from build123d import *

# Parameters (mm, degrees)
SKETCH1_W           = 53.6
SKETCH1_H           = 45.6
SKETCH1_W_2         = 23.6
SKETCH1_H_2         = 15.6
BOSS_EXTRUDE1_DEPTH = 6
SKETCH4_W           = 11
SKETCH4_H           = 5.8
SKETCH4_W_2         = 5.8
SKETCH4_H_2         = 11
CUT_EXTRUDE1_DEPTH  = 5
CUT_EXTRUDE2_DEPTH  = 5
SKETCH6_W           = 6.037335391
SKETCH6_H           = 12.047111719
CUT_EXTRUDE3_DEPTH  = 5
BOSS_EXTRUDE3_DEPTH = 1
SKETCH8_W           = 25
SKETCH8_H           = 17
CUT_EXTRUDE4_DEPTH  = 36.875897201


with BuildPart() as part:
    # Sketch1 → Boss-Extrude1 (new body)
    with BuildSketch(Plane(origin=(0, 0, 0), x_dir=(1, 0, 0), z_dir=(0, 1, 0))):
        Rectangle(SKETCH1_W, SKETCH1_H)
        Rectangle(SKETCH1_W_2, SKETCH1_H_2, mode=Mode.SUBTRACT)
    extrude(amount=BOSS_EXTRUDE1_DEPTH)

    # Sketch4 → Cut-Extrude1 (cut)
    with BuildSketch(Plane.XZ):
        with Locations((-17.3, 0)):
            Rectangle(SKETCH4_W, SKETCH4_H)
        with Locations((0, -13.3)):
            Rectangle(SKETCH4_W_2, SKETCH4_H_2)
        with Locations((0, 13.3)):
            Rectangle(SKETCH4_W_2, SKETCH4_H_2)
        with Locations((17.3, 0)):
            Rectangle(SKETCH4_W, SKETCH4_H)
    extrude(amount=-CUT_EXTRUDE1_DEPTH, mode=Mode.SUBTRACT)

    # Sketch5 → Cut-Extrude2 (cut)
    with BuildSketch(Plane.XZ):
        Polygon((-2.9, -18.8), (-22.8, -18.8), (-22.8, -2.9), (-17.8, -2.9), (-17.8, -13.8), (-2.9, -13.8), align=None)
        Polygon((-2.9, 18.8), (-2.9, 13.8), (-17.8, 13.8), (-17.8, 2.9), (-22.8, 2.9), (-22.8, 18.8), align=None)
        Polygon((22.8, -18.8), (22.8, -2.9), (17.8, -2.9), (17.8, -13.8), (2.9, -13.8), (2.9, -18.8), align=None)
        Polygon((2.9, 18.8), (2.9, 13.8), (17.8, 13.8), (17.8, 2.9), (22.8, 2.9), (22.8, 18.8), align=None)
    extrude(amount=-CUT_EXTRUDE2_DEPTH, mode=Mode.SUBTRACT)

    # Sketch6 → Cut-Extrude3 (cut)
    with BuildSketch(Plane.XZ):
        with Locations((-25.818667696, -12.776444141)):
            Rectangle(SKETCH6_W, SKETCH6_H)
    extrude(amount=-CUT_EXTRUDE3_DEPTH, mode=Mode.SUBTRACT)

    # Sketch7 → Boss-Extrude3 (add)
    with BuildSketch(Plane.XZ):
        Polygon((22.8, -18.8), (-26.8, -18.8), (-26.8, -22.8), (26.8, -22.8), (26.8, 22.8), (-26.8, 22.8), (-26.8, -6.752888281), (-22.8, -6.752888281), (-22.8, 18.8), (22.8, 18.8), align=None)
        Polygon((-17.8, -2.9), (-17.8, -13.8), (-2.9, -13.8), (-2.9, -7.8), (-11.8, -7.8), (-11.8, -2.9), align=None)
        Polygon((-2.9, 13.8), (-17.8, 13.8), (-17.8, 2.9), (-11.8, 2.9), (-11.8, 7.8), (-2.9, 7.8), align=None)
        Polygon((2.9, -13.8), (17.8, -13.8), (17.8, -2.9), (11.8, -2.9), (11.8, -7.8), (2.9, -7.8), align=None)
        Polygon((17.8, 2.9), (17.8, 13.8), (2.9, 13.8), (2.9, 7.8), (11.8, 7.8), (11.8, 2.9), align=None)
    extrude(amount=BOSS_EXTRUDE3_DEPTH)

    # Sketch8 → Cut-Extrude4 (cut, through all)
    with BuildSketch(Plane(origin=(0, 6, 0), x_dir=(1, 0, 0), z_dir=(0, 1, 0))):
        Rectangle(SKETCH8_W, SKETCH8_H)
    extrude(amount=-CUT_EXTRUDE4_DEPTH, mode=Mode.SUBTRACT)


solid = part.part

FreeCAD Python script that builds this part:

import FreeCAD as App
import Part
import Sketcher

doc = App.newDocument("Part")
body = doc.addObject("PartDesign::Body", "Body")

# Sketch on XZ plane
sketch1 = body.newObject("Sketcher::SketchObject", "Sketch")
sketch1.AttachmentSupport = (doc.getObject("XZ_Plane"), [""])
sketch1.MapMode = "FlatFace"
sketch1.addGeometry([
    Part.LineSegment(App.Vector(-27, -23, 0), App.Vector(-27, 23, 0)),  # 0
    Part.LineSegment(App.Vector(-27, 23, 0), App.Vector(27, 23, 0)),  # 1
    Part.LineSegment(App.Vector(27, 23, 0), App.Vector(27, -23, 0)),  # 2
    Part.LineSegment(App.Vector(27, -23, 0), App.Vector(-27, -23, 0)),  # 3
    Part.LineSegment(App.Vector(12, 8, 0), App.Vector(-12, 8, 0)),  # 4
    Part.LineSegment(App.Vector(-12, 8, 0), App.Vector(-12, -8, 0)),  # 5
    Part.LineSegment(App.Vector(-12, -8, 0), App.Vector(12, -8, 0)),  # 6
    Part.LineSegment(App.Vector(12, -8, 0), App.Vector(12, 8, 0)),  # 7
], False)
sketch1.addConstraint([
    Sketcher.Constraint("Coincident", 0, 2, 1, 1),
    Sketcher.Constraint("Coincident", 1, 2, 2, 1),
    Sketcher.Constraint("Coincident", 2, 2, 3, 1),
    Sketcher.Constraint("Coincident", 3, 2, 0, 1),
    Sketcher.Constraint("Coincident", 4, 2, 5, 1),
    Sketcher.Constraint("Coincident", 5, 2, 6, 1),
    Sketcher.Constraint("Coincident", 6, 2, 7, 1),
    Sketcher.Constraint("Coincident", 7, 2, 4, 1),
    Sketcher.Constraint("Vertical", 0),
    Sketcher.Constraint("Horizontal", 1),
    Sketcher.Constraint("Vertical", 2),
    Sketcher.Constraint("Horizontal", 3),
    Sketcher.Constraint("Horizontal", 4),
    Sketcher.Constraint("Vertical", 5),
    Sketcher.Constraint("Horizontal", 6),
    Sketcher.Constraint("Vertical", 7),
    Sketcher.Constraint("Symmetric", 0, 2, 2, 2, -1, 1),
    Sketcher.Constraint("Symmetric", 4, 2, 6, 2, -1, 1),
    Sketcher.Constraint("DistanceX", 1, 1, 1, 2, 53.6),
    Sketcher.Constraint("DistanceX", 4, 2, 4, 1, 23.6),
    Sketcher.Constraint("DistanceY", 0, 1, 0, 2, 45.6),
    Sketcher.Constraint("DistanceY", 5, 2, 5, 1, 15.6),
])
pad1 = body.newObject("PartDesign::Pad", "Pad")
pad1.Profile = sketch1
pad1.Length = 6
pad1.Reversed = True

# Sketch on XZ plane
sketch2 = body.newObject("Sketcher::SketchObject", "Sketch001")
sketch2.AttachmentSupport = (doc.getObject("XZ_Plane"), [""])
sketch2.MapMode = "FlatFace"
sketch2.addGeometry([
    Part.LineSegment(App.Vector(-23, 3, 0), App.Vector(-23, -3, 0)),  # 0
    Part.LineSegment(App.Vector(-23, -3, 0), App.Vector(-12, -3, 0)),  # 1
    Part.LineSegment(App.Vector(-12, -3, 0), App.Vector(-12, 3, 0)),  # 2
    Part.LineSegment(App.Vector(-12, 3, 0), App.Vector(-23, 3, 0)),  # 3
    Part.LineSegment(App.Vector(-3, -8, 0), App.Vector(-3, -19, 0)),  # 4
    Part.LineSegment(App.Vector(-3, -19, 0), App.Vector(3, -19, 0)),  # 5
    Part.LineSegment(App.Vector(3, -19, 0), App.Vector(3, -8, 0)),  # 6
    Part.LineSegment(App.Vector(3, -8, 0), App.Vector(-3, -8, 0)),  # 7
    Part.LineSegment(App.Vector(-3, 19, 0), App.Vector(-3, 8, 0)),  # 8
    Part.LineSegment(App.Vector(-3, 8, 0), App.Vector(3, 8, 0)),  # 9
    Part.LineSegment(App.Vector(3, 8, 0), App.Vector(3, 19, 0)),  # 10
    Part.LineSegment(App.Vector(3, 19, 0), App.Vector(-3, 19, 0)),  # 11
    Part.LineSegment(App.Vector(12, 3, 0), App.Vector(12, -3, 0)),  # 12
    Part.LineSegment(App.Vector(12, -3, 0), App.Vector(23, -3, 0)),  # 13
    Part.LineSegment(App.Vector(23, -3, 0), App.Vector(23, 3, 0)),  # 14
    Part.LineSegment(App.Vector(23, 3, 0), App.Vector(12, 3, 0)),  # 15
], False)
sketch2.addConstraint([
    Sketcher.Constraint("Coincident", 0, 2, 1, 1),
    Sketcher.Constraint("Coincident", 1, 2, 2, 1),
    Sketcher.Constraint("Coincident", 2, 2, 3, 1),
    Sketcher.Constraint("Coincident", 3, 2, 0, 1),
    Sketcher.Constraint("Coincident", 4, 2, 5, 1),
    Sketcher.Constraint("Coincident", 5, 2, 6, 1),
    Sketcher.Constraint("Coincident", 6, 2, 7, 1),
    Sketcher.Constraint("Coincident", 7, 2, 4, 1),
    Sketcher.Constraint("Coincident", 8, 2, 9, 1),
    Sketcher.Constraint("Coincident", 9, 2, 10, 1),
    Sketcher.Constraint("Coincident", 10, 2, 11, 1),
    Sketcher.Constraint("Coincident", 11, 2, 8, 1),
    Sketcher.Constraint("Coincident", 12, 2, 13, 1),
    Sketcher.Constraint("Coincident", 13, 2, 14, 1),
    Sketcher.Constraint("Coincident", 14, 2, 15, 1),
    Sketcher.Constraint("Coincident", 15, 2, 12, 1),
    Sketcher.Constraint("Vertical", 0),
    Sketcher.Constraint("Horizontal", 1),
    Sketcher.Constraint("Vertical", 2),
    Sketcher.Constraint("Horizontal", 3),
    Sketcher.Constraint("Vertical", 4),
    Sketcher.Constraint("Horizontal", 5),
    Sketcher.Constraint("Vertical", 6),
    Sketcher.Constraint("Horizontal", 7),
    Sketcher.Constraint("Vertical", 8),
    Sketcher.Constraint("Horizontal", 9),
    Sketcher.Constraint("Vertical", 10),
    Sketcher.Constraint("Horizontal", 11),
    Sketcher.Constraint("Vertical", 12),
    Sketcher.Constraint("Horizontal", 13),
    Sketcher.Constraint("Vertical", 14),
    Sketcher.Constraint("Horizontal", 15),
    Sketcher.Constraint("Symmetric", 6, 2, 8, 2, -1, 1),
    Sketcher.Constraint("Symmetric", 4, 2, 10, 2, -1, 1),
    Sketcher.Constraint("Symmetric", 2, 2, 12, 2, -1, 1),
    Sketcher.Constraint("Symmetric", 0, 2, 14, 2, -1, 1),
    Sketcher.Constraint("Horizontal", 1, 2, 12, 2),
    Sketcher.Constraint("Vertical", 7, 2, 8, 2),
    Sketcher.Constraint("Equal", 11, 0),
    Sketcher.Constraint("Equal", 15, 4),
    Sketcher.Constraint("DistanceX", 1, 1, 1, 2, 11.0),
    Sketcher.Constraint("DistanceX", 5, 1, 5, 2, 5.8),
    Sketcher.Constraint("DistanceX", 0, 2, -1, 1, 22.8),
    Sketcher.Constraint("DistanceY", 4, 2, -1, 1, 18.8),
])
pocket1 = body.newObject("PartDesign::Pocket", "Pocket")
pocket1.Profile = sketch2
pocket1.Length = 5

# Sketch on XZ plane
sketch3 = body.newObject("Sketcher::SketchObject", "Sketch002")
sketch3.AttachmentSupport = (doc.getObject("XZ_Plane"), [""])
sketch3.MapMode = "FlatFace"
sketch3.addGeometry([
    Part.LineSegment(App.Vector(-23, -19, 0), App.Vector(-3, -19, 0)),  # 0
    Part.LineSegment(App.Vector(-3, -19, 0), App.Vector(-3, -14, 0)),  # 1
    Part.LineSegment(App.Vector(-3, -14, 0), App.Vector(-18, -14, 0)),  # 2
    Part.LineSegment(App.Vector(-18, -14, 0), App.Vector(-18, -3, 0)),  # 3
    Part.LineSegment(App.Vector(-18, -3, 0), App.Vector(-23, -3, 0)),  # 4
    Part.LineSegment(App.Vector(-23, -3, 0), App.Vector(-23, -19, 0)),  # 5
    Part.LineSegment(App.Vector(-3, 14, 0), App.Vector(-3, 19, 0)),  # 6
    Part.LineSegment(App.Vector(-3, 19, 0), App.Vector(-23, 19, 0)),  # 7
    Part.LineSegment(App.Vector(-23, 19, 0), App.Vector(-23, 3, 0)),  # 8
    Part.LineSegment(App.Vector(-23, 3, 0), App.Vector(-18, 3, 0)),  # 9
    Part.LineSegment(App.Vector(-18, 3, 0), App.Vector(-18, 14, 0)),  # 10
    Part.LineSegment(App.Vector(-18, 14, 0), App.Vector(-3, 14, 0)),  # 11
    Part.LineSegment(App.Vector(23, -19, 0), App.Vector(23, -3, 0)),  # 12
    Part.LineSegment(App.Vector(23, -3, 0), App.Vector(18, -3, 0)),  # 13
    Part.LineSegment(App.Vector(18, -3, 0), App.Vector(18, -14, 0)),  # 14
    Part.LineSegment(App.Vector(18, -14, 0), App.Vector(3, -14, 0)),  # 15
    Part.LineSegment(App.Vector(3, -14, 0), App.Vector(3, -19, 0)),  # 16
    Part.LineSegment(App.Vector(3, -19, 0), App.Vector(23, -19, 0)),  # 17
    Part.LineSegment(App.Vector(3, 19, 0), App.Vector(3, 14, 0)),  # 18
    Part.LineSegment(App.Vector(3, 14, 0), App.Vector(18, 14, 0)),  # 19
    Part.LineSegment(App.Vector(18, 14, 0), App.Vector(18, 3, 0)),  # 20
    Part.LineSegment(App.Vector(18, 3, 0), App.Vector(23, 3, 0)),  # 21
    Part.LineSegment(App.Vector(23, 3, 0), App.Vector(23, 19, 0)),  # 22
    Part.LineSegment(App.Vector(23, 19, 0), App.Vector(3, 19, 0)),  # 23
], False)
sketch3.addConstraint([
    Sketcher.Constraint("Coincident", 0, 2, 1, 1),
    Sketcher.Constraint("Coincident", 1, 2, 2, 1),
    Sketcher.Constraint("Coincident", 2, 2, 3, 1),
    Sketcher.Constraint("Coincident", 3, 2, 4, 1),
    Sketcher.Constraint("Coincident", 4, 2, 5, 1),
    Sketcher.Constraint("Coincident", 5, 2, 0, 1),
    Sketcher.Constraint("Coincident", 6, 2, 7, 1),
    Sketcher.Constraint("Coincident", 7, 2, 8, 1),
    Sketcher.Constraint("Coincident", 8, 2, 9, 1),
    Sketcher.Constraint("Coincident", 9, 2, 10, 1),
    Sketcher.Constraint("Coincident", 10, 2, 11, 1),
    Sketcher.Constraint("Coincident", 11, 2, 6, 1),
    Sketcher.Constraint("Coincident", 12, 2, 13, 1),
    Sketcher.Constraint("Coincident", 13, 2, 14, 1),
    Sketcher.Constraint("Coincident", 14, 2, 15, 1),
    Sketcher.Constraint("Coincident", 15, 2, 16, 1),
    Sketcher.Constraint("Coincident", 16, 2, 17, 1),
    Sketcher.Constraint("Coincident", 17, 2, 12, 1),
    Sketcher.Constraint("Coincident", 18, 2, 19, 1),
    Sketcher.Constraint("Coincident", 19, 2, 20, 1),
    Sketcher.Constraint("Coincident", 20, 2, 21, 1),
    Sketcher.Constraint("Coincident", 21, 2, 22, 1),
    Sketcher.Constraint("Coincident", 22, 2, 23, 1),
    Sketcher.Constraint("Coincident", 23, 2, 18, 1),
    Sketcher.Constraint("Horizontal", 0),
    Sketcher.Constraint("Vertical", 1),
    Sketcher.Constraint("Horizontal", 2),
    Sketcher.Constraint("Vertical", 3),
    Sketcher.Constraint("Horizontal", 4),
    Sketcher.Constraint("Vertical", 5),
    Sketcher.Constraint("Vertical", 6),
    Sketcher.Constraint("Horizontal", 7),
    Sketcher.Constraint("Vertical", 8),
    Sketcher.Constraint("Horizontal", 9),
    Sketcher.Constraint("Vertical", 10),
    Sketcher.Constraint("Horizontal", 11),
    Sketcher.Constraint("Vertical", 12),
    Sketcher.Constraint("Horizontal", 13),
    Sketcher.Constraint("Vertical", 14),
    Sketcher.Constraint("Horizontal", 15),
    Sketcher.Constraint("Vertical", 16),
    Sketcher.Constraint("Horizontal", 17),
    Sketcher.Constraint("Vertical", 18),
    Sketcher.Constraint("Horizontal", 19),
    Sketcher.Constraint("Vertical", 20),
    Sketcher.Constraint("Horizontal", 21),
    Sketcher.Constraint("Vertical", 22),
    Sketcher.Constraint("Horizontal", 23),
    Sketcher.Constraint("Symmetric", 8, 2, 12, 2, -1, 1),
    Sketcher.Constraint("Symmetric", 10, 2, 14, 2, -1, 1),
    Sketcher.Constraint("Symmetric", 6, 2, 16, 2, -1, 1),
    Sketcher.Constraint("Symmetric", 1, 2, 18, 2, -1, 1),
    Sketcher.Constraint("Symmetric", 3, 2, 20, 2, -1, 1),
    Sketcher.Constraint("Symmetric", 5, 2, 22, 2, -1, 1),
    Sketcher.Constraint("Symmetric", 4, 2, 12, 2, -2),
    Sketcher.Constraint("Symmetric", 2, 2, 14, 2, -2),
    Sketcher.Constraint("Symmetric", 0, 2, 16, 2, -2),
    Sketcher.Constraint("Equal", 21, 1),
    Sketcher.Constraint("DistanceX", 4, 2, 4, 1, 5.0),
    Sketcher.Constraint("DistanceX", 0, 1, 0, 2, 19.9),
    Sketcher.Constraint("DistanceY", 3, 1, 3, 2, 10.9),
    Sketcher.Constraint("DistanceX", 0, 2, -1, 1, 2.9),
    Sketcher.Constraint("DistanceY", 0, 2, -1, 1, 18.8),
])
pocket2 = body.newObject("PartDesign::Pocket", "Pocket001")
pocket2.Profile = sketch3
pocket2.Length = 5

# Sketch on XZ plane
sketch4 = body.newObject("Sketcher::SketchObject", "Sketch003")
sketch4.AttachmentSupport = (doc.getObject("XZ_Plane"), [""])
sketch4.MapMode = "FlatFace"
sketch4.addGeometry([
    Part.LineSegment(App.Vector(-29, -7, 0), App.Vector(-29, -19, 0)),
    Part.LineSegment(App.Vector(-29, -19, 0), App.Vector(-23, -19, 0)),
    Part.LineSegment(App.Vector(-23, -19, 0), App.Vector(-23, -7, 0)),
    Part.LineSegment(App.Vector(-23, -7, 0), App.Vector(-29, -7, 0)),
], False)
sketch4.addConstraint([
    Sketcher.Constraint("Coincident", 0, 2, 1, 1),
    Sketcher.Constraint("Coincident", 1, 2, 2, 1),
    Sketcher.Constraint("Coincident", 2, 2, 3, 1),
    Sketcher.Constraint("Coincident", 3, 2, 0, 1),
    Sketcher.Constraint("Vertical", 0),
    Sketcher.Constraint("Horizontal", 1),
    Sketcher.Constraint("Vertical", 2),
    Sketcher.Constraint("Horizontal", 3),
    Sketcher.Constraint("DistanceY", 0, 2, -1, 1, 18.8),
    Sketcher.Constraint("DistanceX", 1, 2, -1, 1, 22.8),
    Sketcher.Constraint("DistanceY", 0, 2, 0, 1, 12.047112),
    Sketcher.Constraint("DistanceX", 1, 1, 1, 2, 6.037335),
])
pocket3 = body.newObject("PartDesign::Pocket", "Pocket002")
pocket3.Profile = sketch4
pocket3.Length = 5

# Sketch on XZ plane
sketch5 = body.newObject("Sketcher::SketchObject", "Sketch004")
sketch5.AttachmentSupport = (doc.getObject("XZ_Plane"), [""])
sketch5.MapMode = "FlatFace"
sketch5.addGeometry([
    Part.LineSegment(App.Vector(22.8, -18.8, 0), App.Vector(-26.8, -18.8, 0)),  # 0
    Part.LineSegment(App.Vector(-26.8, -18.8, 0), App.Vector(-26.8, -22.8, 0)),  # 1
    Part.LineSegment(App.Vector(-26.8, -22.8, 0), App.Vector(26.8, -22.8, 0)),  # 2
    Part.LineSegment(App.Vector(26.8, -22.8, 0), App.Vector(26.8, 22.8, 0)),  # 3
    Part.LineSegment(App.Vector(26.8, 22.8, 0), App.Vector(-26.8, 22.8, 0)),  # 4
    Part.LineSegment(App.Vector(-26.8, 22.8, 0), App.Vector(-26.8, -6.8, 0)),  # 5
    Part.LineSegment(App.Vector(-26.8, -6.8, 0), App.Vector(-22.8, -6.8, 0)),  # 6
    Part.LineSegment(App.Vector(-22.8, -6.8, 0), App.Vector(-22.8, 18.8, 0)),  # 7
    Part.LineSegment(App.Vector(-22.8, 18.8, 0), App.Vector(22.8, 18.8, 0)),  # 8
    Part.LineSegment(App.Vector(22.8, 18.8, 0), App.Vector(22.8, -18.8, 0)),  # 9
    Part.LineSegment(App.Vector(-17.8, -2.9, 0), App.Vector(-17.8, -13.8, 0)),  # 10
    Part.LineSegment(App.Vector(-17.8, -13.8, 0), App.Vector(-2.9, -13.8, 0)),  # 11
    Part.LineSegment(App.Vector(-2.9, -13.8, 0), App.Vector(-2.9, -7.8, 0)),  # 12
    Part.LineSegment(App.Vector(-2.9, -7.8, 0), App.Vector(-11.8, -7.8, 0)),  # 13
    Part.LineSegment(App.Vector(-11.8, -7.8, 0), App.Vector(-11.8, -2.9, 0)),  # 14
    Part.LineSegment(App.Vector(-11.8, -2.9, 0), App.Vector(-17.8, -2.9, 0)),  # 15
    Part.LineSegment(App.Vector(-2.9, 13.8, 0), App.Vector(-17.8, 13.8, 0)),  # 16
    Part.LineSegment(App.Vector(-17.8, 13.8, 0), App.Vector(-17.8, 2.9, 0)),  # 17
    Part.LineSegment(App.Vector(-17.8, 2.9, 0), App.Vector(-11.8, 2.9, 0)),  # 18
    Part.LineSegment(App.Vector(-11.8, 2.9, 0), App.Vector(-11.8, 7.8, 0)),  # 19
    Part.LineSegment(App.Vector(-11.8, 7.8, 0), App.Vector(-2.9, 7.8, 0)),  # 20
    Part.LineSegment(App.Vector(-2.9, 7.8, 0), App.Vector(-2.9, 13.8, 0)),  # 21
    Part.LineSegment(App.Vector(2.9, -13.8, 0), App.Vector(17.8, -13.8, 0)),  # 22
    Part.LineSegment(App.Vector(17.8, -13.8, 0), App.Vector(17.8, -2.9, 0)),  # 23
    Part.LineSegment(App.Vector(17.8, -2.9, 0), App.Vector(11.8, -2.9, 0)),  # 24
    Part.LineSegment(App.Vector(11.8, -2.9, 0), App.Vector(11.8, -7.8, 0)),  # 25
    Part.LineSegment(App.Vector(11.8, -7.8, 0), App.Vector(2.9, -7.8, 0)),  # 26
    Part.LineSegment(App.Vector(2.9, -7.8, 0), App.Vector(2.9, -13.8, 0)),  # 27
    Part.LineSegment(App.Vector(17.8, 2.9, 0), App.Vector(17.8, 13.8, 0)),  # 28
    Part.LineSegment(App.Vector(17.8, 13.8, 0), App.Vector(2.9, 13.8, 0)),  # 29
    Part.LineSegment(App.Vector(2.9, 13.8, 0), App.Vector(2.9, 7.8, 0)),  # 30
    Part.LineSegment(App.Vector(2.9, 7.8, 0), App.Vector(11.8, 7.8, 0)),  # 31
    Part.LineSegment(App.Vector(11.8, 7.8, 0), App.Vector(11.8, 2.9, 0)),  # 32
    Part.LineSegment(App.Vector(11.8, 2.9, 0), App.Vector(17.8, 2.9, 0)),  # 33
], False)
sketch5.addConstraint([
    Sketcher.Constraint("Coincident", 0, 2, 1, 1),
    Sketcher.Constraint("Coincident", 1, 2, 2, 1),
    Sketcher.Constraint("Coincident", 2, 2, 3, 1),
    Sketcher.Constraint("Coincident", 3, 2, 4, 1),
    Sketcher.Constraint("Coincident", 4, 2, 5, 1),
    Sketcher.Constraint("Coincident", 5, 2, 6, 1),
    Sketcher.Constraint("Coincident", 6, 2, 7, 1),
    Sketcher.Constraint("Coincident", 7, 2, 8, 1),
    Sketcher.Constraint("Coincident", 8, 2, 9, 1),
    Sketcher.Constraint("Coincident", 9, 2, 0, 1),
    Sketcher.Constraint("Coincident", 10, 2, 11, 1),
    Sketcher.Constraint("Coincident", 11, 2, 12, 1),
    Sketcher.Constraint("Coincident", 12, 2, 13, 1),
    Sketcher.Constraint("Coincident", 13, 2, 14, 1),
    Sketcher.Constraint("Coincident", 14, 2, 15, 1),
    Sketcher.Constraint("Coincident", 15, 2, 10, 1),
    Sketcher.Constraint("Coincident", 16, 2, 17, 1),
    Sketcher.Constraint("Coincident", 17, 2, 18, 1),
    Sketcher.Constraint("Coincident", 18, 2, 19, 1),
    Sketcher.Constraint("Coincident", 19, 2, 20, 1),
    Sketcher.Constraint("Coincident", 20, 2, 21, 1),
    Sketcher.Constraint("Coincident", 21, 2, 16, 1),
    Sketcher.Constraint("Coincident", 22, 2, 23, 1),
    Sketcher.Constraint("Coincident", 23, 2, 24, 1),
    Sketcher.Constraint("Coincident", 24, 2, 25, 1),
    Sketcher.Constraint("Coincident", 25, 2, 26, 1),
    Sketcher.Constraint("Coincident", 26, 2, 27, 1),
    Sketcher.Constraint("Coincident", 27, 2, 22, 1),
    Sketcher.Constraint("Coincident", 28, 2, 29, 1),
    Sketcher.Constraint("Coincident", 29, 2, 30, 1),
    Sketcher.Constraint("Coincident", 30, 2, 31, 1),
    Sketcher.Constraint("Coincident", 31, 2, 32, 1),
    Sketcher.Constraint("Coincident", 32, 2, 33, 1),
    Sketcher.Constraint("Coincident", 33, 2, 28, 1),
    Sketcher.Constraint("Horizontal", 0),
    Sketcher.Constraint("Vertical", 1),
    Sketcher.Constraint("Horizontal", 2),
    Sketcher.Constraint("Vertical", 3),
    Sketcher.Constraint("Horizontal", 4),
    Sketcher.Constraint("Vertical", 5),
    Sketcher.Constraint("Horizontal", 6),
    Sketcher.Constraint("Vertical", 7),
    Sketcher.Constraint("Horizontal", 8),
    Sketcher.Constraint("Vertical", 9),
    Sketcher.Constraint("Vertical", 10),
    Sketcher.Constraint("Horizontal", 11),
    Sketcher.Constraint("Vertical", 12),
    Sketcher.Constraint("Horizontal", 13),
    Sketcher.Constraint("Vertical", 14),
    Sketcher.Constraint("Horizontal", 15),
    Sketcher.Constraint("Horizontal", 16),
    Sketcher.Constraint("Vertical", 17),
    Sketcher.Constraint("Horizontal", 18),
    Sketcher.Constraint("Vertical", 19),
    Sketcher.Constraint("Horizontal", 20),
    Sketcher.Constraint("Vertical", 21),
    Sketcher.Constraint("Horizontal", 22),
    Sketcher.Constraint("Vertical", 23),
    Sketcher.Constraint("Horizontal", 24),
    Sketcher.Constraint("Vertical", 25),
    Sketcher.Constraint("Horizontal", 26),
    Sketcher.Constraint("Vertical", 27),
    Sketcher.Constraint("Vertical", 28),
    Sketcher.Constraint("Horizontal", 29),
    Sketcher.Constraint("Vertical", 30),
    Sketcher.Constraint("Horizontal", 31),
    Sketcher.Constraint("Vertical", 32),
    Sketcher.Constraint("Horizontal", 33),
    Sketcher.Constraint("Symmetric", 1, 2, 3, 2, -1, 1),
    Sketcher.Constraint("Symmetric", 7, 2, 9, 2, -1, 1),
    Sketcher.Constraint("Symmetric", 16, 2, 22, 2, -1, 1),
    Sketcher.Constraint("Symmetric", 18, 2, 24, 2, -1, 1),
    Sketcher.Constraint("Symmetric", 20, 2, 26, 2, -1, 1),
    Sketcher.Constraint("Symmetric", 10, 2, 28, 2, -1, 1),
    Sketcher.Constraint("Symmetric", 12, 2, 30, 2, -1, 1),
    Sketcher.Constraint("Symmetric", 14, 2, 32, 2, -1, 1),
    Sketcher.Constraint("Symmetric", 10, 2, 22, 2, -2),
    Sketcher.Constraint("Symmetric", 14, 2, 24, 2, -2),
    Sketcher.Constraint("Symmetric", 12, 2, 26, 2, -2),
    Sketcher.Constraint("Vertical", 1, 2, 4, 2),
    Sketcher.Constraint("Equal", 6, 1),
    Sketcher.Constraint("Equal", 8, 3),
    Sketcher.Constraint("Equal", 33, 12),
    Sketcher.Constraint("DistanceX", 6, 1, 6, 2, 4.0),
    Sketcher.Constraint("DistanceX", 15, 2, 15, 1, 6.0),
    Sketcher.Constraint("DistanceX", 0, 2, 0, 1, 49.6),
    Sketcher.Constraint("DistanceX", 11, 1, 11, 2, 14.9),
    Sketcher.Constraint("DistanceY", 10, 2, 10, 1, 10.9),
    Sketcher.Constraint("DistanceX", 6, 2, 10, 2, 5.0),
    Sketcher.Constraint("DistanceY", 0, 2, 10, 2, 5.0),
    Sketcher.Constraint("DistanceY", 5, 2, 5, 1, 29.552888),
])
pad2 = body.newObject("PartDesign::Pad", "Pad001")
pad2.Profile = sketch5
pad2.Length = 1

# Sketch on XZ plane
sketch6 = body.newObject("Sketcher::SketchObject", "Sketch005")
sketch6.AttachmentSupport = (doc.getObject("XZ_Plane"), [""])
sketch6.MapMode = "FlatFace"
sketch6.AttachmentOffset = App.Placement(App.Vector(0, 0, -6), App.Rotation())
sketch6.addGeometry([
    Part.LineSegment(App.Vector(-12, -8, 0), App.Vector(-12, 8, 0)),
    Part.LineSegment(App.Vector(-12, 8, 0), App.Vector(12, 8, 0)),
    Part.LineSegment(App.Vector(12, 8, 0), App.Vector(12, -8, 0)),
    Part.LineSegment(App.Vector(12, -8, 0), App.Vector(-12, -8, 0)),
], False)
sketch6.addConstraint([
    Sketcher.Constraint("Coincident", 0, 2, 1, 1),
    Sketcher.Constraint("Coincident", 1, 2, 2, 1),
    Sketcher.Constraint("Coincident", 2, 2, 3, 1),
    Sketcher.Constraint("Coincident", 3, 2, 0, 1),
    Sketcher.Constraint("Vertical", 0),
    Sketcher.Constraint("Horizontal", 1),
    Sketcher.Constraint("Vertical", 2),
    Sketcher.Constraint("Horizontal", 3),
    Sketcher.Constraint("Symmetric", 0, 2, 2, 2, -1, 1),
    Sketcher.Constraint("DistanceX", 1, 1, 1, 2, 25.0),
    Sketcher.Constraint("DistanceY", 0, 1, 0, 2, 17.0),
])
pocket4 = body.newObject("PartDesign::Pocket", "Pocket003")
pocket4.Profile = sketch6
pocket4.Type = "ThroughAll"
pocket4.Reversed = True

doc.recompute()
